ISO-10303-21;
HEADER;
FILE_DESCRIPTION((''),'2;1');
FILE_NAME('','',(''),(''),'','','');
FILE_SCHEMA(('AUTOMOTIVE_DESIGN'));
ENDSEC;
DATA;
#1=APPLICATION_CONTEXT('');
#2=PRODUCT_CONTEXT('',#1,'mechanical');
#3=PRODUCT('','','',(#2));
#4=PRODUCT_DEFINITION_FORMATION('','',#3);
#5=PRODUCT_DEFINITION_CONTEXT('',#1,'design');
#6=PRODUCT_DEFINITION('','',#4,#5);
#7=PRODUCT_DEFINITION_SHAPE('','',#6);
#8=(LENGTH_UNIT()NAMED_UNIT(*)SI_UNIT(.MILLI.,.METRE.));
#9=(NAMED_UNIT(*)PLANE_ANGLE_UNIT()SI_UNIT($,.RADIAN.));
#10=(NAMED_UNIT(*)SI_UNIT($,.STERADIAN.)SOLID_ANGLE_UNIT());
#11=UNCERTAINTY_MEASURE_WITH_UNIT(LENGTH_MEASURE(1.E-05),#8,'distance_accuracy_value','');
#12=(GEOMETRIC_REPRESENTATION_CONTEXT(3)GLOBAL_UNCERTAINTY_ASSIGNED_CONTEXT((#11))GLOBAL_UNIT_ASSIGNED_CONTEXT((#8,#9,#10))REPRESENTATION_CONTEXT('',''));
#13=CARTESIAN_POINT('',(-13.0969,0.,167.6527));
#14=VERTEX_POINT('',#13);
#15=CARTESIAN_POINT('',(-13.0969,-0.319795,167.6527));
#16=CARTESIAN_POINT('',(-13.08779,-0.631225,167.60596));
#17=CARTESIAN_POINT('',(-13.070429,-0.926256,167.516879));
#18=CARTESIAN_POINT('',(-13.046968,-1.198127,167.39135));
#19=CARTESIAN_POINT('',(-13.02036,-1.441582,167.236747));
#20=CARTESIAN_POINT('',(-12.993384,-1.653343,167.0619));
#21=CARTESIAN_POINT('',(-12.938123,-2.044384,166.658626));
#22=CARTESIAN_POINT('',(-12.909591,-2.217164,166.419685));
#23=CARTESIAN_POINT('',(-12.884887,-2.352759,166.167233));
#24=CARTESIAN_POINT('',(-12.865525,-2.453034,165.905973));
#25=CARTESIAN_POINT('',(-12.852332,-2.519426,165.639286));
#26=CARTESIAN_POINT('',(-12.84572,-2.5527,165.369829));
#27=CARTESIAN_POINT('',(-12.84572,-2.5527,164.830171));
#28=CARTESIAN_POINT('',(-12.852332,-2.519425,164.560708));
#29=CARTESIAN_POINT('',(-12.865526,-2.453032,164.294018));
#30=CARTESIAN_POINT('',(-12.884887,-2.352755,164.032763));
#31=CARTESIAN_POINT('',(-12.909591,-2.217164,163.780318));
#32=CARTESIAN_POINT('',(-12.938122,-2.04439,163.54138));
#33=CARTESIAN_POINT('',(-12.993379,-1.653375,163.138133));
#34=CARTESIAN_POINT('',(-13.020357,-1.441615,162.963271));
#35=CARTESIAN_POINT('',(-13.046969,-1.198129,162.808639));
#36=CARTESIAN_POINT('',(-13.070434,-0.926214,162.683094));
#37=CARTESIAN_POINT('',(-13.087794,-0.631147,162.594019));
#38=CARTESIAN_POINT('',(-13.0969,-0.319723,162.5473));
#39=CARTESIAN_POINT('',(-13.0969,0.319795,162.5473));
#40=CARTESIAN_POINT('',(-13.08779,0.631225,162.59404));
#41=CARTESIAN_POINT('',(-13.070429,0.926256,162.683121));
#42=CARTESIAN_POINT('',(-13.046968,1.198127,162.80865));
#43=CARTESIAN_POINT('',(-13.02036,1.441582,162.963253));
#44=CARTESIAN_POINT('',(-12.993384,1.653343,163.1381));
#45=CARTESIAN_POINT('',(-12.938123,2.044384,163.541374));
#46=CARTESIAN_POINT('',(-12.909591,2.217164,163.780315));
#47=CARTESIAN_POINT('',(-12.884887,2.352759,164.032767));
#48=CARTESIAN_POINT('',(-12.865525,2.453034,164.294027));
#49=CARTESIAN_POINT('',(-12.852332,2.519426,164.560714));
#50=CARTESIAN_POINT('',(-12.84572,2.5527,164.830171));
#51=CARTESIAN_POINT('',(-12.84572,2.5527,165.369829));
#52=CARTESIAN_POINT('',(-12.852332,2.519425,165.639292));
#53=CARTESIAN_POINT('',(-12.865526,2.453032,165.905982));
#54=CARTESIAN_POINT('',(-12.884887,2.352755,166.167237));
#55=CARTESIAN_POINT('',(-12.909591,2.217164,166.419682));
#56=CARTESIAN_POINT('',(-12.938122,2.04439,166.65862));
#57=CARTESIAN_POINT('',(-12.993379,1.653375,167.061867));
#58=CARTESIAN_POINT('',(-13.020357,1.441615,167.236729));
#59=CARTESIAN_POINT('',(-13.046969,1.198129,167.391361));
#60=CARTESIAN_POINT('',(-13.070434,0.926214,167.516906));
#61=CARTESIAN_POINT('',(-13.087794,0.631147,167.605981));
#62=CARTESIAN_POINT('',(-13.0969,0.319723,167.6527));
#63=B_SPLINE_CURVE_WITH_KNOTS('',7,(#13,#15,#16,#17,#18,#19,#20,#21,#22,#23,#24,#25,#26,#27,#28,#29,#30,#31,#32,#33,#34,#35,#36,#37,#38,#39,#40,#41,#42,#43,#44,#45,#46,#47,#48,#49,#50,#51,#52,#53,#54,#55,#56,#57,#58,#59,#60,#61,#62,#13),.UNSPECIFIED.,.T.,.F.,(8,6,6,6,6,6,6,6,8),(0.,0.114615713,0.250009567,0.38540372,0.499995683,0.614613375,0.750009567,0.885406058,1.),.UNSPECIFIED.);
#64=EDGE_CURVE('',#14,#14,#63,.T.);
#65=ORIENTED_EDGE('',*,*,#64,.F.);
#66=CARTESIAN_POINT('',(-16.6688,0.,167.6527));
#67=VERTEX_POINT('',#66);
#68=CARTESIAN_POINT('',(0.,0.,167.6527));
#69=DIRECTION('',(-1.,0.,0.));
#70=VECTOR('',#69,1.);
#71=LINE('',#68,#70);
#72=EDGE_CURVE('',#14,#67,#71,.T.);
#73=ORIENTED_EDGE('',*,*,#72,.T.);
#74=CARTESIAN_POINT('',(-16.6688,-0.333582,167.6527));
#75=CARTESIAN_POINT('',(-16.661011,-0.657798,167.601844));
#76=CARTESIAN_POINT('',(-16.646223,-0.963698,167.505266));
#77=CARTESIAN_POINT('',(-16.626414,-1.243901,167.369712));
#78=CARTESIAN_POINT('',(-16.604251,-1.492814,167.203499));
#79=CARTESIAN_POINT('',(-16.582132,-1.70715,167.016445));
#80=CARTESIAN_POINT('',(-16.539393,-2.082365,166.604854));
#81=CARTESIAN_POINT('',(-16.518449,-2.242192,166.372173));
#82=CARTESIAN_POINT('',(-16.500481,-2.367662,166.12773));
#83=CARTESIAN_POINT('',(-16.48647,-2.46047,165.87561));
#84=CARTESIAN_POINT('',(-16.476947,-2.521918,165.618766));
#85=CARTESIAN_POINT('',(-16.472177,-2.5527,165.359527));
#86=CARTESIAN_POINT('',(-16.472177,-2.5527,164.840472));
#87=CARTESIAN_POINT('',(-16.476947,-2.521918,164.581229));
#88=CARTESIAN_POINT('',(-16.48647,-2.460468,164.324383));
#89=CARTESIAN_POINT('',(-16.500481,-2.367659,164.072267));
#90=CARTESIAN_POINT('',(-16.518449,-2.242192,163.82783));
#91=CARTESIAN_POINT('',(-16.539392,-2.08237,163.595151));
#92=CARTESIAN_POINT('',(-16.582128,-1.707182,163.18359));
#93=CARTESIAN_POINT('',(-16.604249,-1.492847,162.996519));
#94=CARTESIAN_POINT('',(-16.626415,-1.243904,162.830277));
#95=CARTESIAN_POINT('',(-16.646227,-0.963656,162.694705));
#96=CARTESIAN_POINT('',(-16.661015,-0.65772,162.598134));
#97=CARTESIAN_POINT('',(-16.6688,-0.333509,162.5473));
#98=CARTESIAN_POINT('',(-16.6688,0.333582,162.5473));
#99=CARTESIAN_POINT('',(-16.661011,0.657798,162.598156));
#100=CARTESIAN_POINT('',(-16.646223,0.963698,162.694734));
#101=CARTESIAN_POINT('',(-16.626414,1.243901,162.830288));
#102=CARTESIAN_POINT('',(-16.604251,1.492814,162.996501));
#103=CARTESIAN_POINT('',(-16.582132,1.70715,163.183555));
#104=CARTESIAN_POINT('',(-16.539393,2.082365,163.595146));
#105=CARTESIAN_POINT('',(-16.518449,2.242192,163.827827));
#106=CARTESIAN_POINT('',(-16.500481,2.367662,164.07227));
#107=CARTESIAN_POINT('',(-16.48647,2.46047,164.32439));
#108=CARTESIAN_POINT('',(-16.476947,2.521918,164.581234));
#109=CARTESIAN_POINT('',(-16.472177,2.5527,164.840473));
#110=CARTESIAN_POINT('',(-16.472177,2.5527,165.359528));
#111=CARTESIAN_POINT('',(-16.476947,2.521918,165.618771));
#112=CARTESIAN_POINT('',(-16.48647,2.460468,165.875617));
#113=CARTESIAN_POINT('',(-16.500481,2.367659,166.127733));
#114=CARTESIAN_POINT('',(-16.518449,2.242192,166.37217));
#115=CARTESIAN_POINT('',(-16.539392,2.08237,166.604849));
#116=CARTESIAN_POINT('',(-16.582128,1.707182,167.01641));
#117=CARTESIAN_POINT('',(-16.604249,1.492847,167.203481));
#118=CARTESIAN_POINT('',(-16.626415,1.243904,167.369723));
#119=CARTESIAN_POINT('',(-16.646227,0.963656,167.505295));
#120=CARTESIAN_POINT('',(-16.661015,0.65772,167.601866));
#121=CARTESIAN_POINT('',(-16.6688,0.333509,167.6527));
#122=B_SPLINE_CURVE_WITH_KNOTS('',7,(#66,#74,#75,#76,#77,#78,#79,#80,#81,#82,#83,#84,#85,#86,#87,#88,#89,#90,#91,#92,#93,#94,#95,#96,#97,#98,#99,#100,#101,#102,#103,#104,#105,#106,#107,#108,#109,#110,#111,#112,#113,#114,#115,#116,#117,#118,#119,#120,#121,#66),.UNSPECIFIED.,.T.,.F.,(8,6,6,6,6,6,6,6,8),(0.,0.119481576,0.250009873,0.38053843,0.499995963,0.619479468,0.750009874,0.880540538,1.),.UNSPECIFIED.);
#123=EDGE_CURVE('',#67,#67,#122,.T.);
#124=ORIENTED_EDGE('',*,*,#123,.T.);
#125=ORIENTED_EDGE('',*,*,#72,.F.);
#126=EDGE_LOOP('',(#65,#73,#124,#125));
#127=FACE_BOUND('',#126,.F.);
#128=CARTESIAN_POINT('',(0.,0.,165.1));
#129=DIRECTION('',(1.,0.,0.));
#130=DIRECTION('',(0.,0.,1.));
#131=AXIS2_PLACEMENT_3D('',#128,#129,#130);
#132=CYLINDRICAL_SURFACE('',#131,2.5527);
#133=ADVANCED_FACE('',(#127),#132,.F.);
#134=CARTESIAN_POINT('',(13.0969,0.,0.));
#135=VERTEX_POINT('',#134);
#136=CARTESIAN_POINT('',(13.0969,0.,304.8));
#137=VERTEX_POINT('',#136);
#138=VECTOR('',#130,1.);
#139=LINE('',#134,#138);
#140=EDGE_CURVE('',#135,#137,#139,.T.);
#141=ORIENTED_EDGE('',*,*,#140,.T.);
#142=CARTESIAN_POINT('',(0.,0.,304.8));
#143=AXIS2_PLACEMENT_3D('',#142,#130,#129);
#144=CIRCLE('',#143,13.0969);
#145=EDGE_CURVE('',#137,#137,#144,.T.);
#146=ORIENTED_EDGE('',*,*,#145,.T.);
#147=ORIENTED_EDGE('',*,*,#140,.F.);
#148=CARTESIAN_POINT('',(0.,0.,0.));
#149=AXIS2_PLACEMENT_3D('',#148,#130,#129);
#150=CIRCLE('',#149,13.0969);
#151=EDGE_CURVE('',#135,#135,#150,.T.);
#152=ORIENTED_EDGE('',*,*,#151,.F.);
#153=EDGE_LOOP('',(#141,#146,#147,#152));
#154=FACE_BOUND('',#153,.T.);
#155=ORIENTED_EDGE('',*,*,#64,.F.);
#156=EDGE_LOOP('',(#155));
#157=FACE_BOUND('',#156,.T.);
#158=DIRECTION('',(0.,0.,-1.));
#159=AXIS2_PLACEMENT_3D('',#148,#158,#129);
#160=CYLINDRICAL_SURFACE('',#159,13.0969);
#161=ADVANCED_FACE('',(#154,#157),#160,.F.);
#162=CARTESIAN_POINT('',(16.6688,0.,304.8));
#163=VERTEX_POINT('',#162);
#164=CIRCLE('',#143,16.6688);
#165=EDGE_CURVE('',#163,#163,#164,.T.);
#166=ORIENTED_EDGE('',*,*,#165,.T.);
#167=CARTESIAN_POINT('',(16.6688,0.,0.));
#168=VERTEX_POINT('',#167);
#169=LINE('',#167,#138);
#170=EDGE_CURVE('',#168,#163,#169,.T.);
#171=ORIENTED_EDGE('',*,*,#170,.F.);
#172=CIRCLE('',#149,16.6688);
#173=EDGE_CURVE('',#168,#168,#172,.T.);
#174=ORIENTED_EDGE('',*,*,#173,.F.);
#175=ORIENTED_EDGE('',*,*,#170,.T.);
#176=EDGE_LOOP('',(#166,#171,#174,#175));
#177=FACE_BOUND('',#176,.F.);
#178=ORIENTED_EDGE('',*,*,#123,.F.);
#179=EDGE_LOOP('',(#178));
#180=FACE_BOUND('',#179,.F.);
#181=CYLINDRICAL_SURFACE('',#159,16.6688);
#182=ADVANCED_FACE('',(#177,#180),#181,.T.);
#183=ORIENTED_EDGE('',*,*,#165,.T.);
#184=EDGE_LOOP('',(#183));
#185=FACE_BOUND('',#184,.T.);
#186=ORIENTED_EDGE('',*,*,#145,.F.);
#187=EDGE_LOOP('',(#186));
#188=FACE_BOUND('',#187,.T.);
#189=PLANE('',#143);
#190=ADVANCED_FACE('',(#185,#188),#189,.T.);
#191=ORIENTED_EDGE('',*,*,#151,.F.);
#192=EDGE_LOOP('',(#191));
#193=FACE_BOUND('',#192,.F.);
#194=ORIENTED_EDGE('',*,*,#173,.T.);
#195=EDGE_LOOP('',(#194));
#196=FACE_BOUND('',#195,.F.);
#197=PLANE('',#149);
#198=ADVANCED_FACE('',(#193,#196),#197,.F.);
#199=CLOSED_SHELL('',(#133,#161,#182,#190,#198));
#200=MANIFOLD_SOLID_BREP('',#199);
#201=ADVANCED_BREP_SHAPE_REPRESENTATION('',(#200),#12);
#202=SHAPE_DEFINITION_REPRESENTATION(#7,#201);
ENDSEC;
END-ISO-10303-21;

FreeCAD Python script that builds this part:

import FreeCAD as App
import Part
import Sketcher
Q = App.Units.Quantity

doc = App.newDocument("Part")
params = doc.addObject("Spreadsheet::Sheet", "Params")
for row, (alias, value) in enumerate([
    ("sketch1_diameter", "1.3125 in"),
    ("sketch1_diameter2", "1.031252 in"),
    ("pad1_length", "12 in"),
    ("sketch2_diameter", "0.201 in"),
    ("pocket1_length", "12 in"),
], start=1):
    params.set(f"A{row}", alias)
    params.set(f"B{row}", "=" + value)
    params.setAlias(f"B{row}", alias)

body = doc.addObject("PartDesign::Body", "Body")

sketch1 = body.newObject("Sketcher::SketchObject", "Sketch")
sketch1.AttachmentSupport = (doc.getObject("XY_Plane"), [""])
sketch1.MapMode = "FlatFace"
sketch1.addGeometry([
    Part.Circle(App.Vector(0, 0, 0), App.Vector(0, 0, 1), 17),
    Part.Circle(App.Vector(0, 0, 0), App.Vector(0, 0, 1), 13),
], False)
sketch1.addConstraint([
    Sketcher.Constraint("Coincident", 0, 3, -1, 1),
    Sketcher.Constraint("Coincident", 1, 3, -1, 1),
    Sketcher.Constraint("Diameter", 0, Q("1.3125 in")),
    Sketcher.Constraint("Diameter", 1, Q("1.031252 in")),
])
sketch1.setExpression("Constraints[2]", "Params.sketch1_diameter")
sketch1.setExpression("Constraints[3]", "Params.sketch1_diameter2")
pad1 = body.newObject("PartDesign::Pad", "Pad")
pad1.Profile = sketch1
pad1.setExpression("Length", "Params.pad1_length")

sketch2 = body.newObject("Sketcher::SketchObject", "Sketch001")
sketch2.AttachmentSupport = (doc.getObject("YZ_Plane"), [""])
sketch2.MapMode = "FlatFace"
sketch2.addGeometry(Part.Circle(App.Vector(0, 165.1, 0), App.Vector(0, 0, 1), 2.6), False)
sketch2.addConstraint([
    Sketcher.Constraint("PointOnObject", 0, 3, -2),
    Sketcher.Constraint("Diameter", 0, Q("0.201 in")),
    Sketcher.Constraint("DistanceY", -1, 1, 0, 3, Q("6.5 in")),
])
sketch2.setExpression("Constraints[1]", "Params.sketch2_diameter")
pocket1 = body.newObject("PartDesign::Pocket", "Pocket")
pocket1.Profile = sketch2
pocket1.setExpression("Length", "Params.pocket1_length")

doc.recompute()
